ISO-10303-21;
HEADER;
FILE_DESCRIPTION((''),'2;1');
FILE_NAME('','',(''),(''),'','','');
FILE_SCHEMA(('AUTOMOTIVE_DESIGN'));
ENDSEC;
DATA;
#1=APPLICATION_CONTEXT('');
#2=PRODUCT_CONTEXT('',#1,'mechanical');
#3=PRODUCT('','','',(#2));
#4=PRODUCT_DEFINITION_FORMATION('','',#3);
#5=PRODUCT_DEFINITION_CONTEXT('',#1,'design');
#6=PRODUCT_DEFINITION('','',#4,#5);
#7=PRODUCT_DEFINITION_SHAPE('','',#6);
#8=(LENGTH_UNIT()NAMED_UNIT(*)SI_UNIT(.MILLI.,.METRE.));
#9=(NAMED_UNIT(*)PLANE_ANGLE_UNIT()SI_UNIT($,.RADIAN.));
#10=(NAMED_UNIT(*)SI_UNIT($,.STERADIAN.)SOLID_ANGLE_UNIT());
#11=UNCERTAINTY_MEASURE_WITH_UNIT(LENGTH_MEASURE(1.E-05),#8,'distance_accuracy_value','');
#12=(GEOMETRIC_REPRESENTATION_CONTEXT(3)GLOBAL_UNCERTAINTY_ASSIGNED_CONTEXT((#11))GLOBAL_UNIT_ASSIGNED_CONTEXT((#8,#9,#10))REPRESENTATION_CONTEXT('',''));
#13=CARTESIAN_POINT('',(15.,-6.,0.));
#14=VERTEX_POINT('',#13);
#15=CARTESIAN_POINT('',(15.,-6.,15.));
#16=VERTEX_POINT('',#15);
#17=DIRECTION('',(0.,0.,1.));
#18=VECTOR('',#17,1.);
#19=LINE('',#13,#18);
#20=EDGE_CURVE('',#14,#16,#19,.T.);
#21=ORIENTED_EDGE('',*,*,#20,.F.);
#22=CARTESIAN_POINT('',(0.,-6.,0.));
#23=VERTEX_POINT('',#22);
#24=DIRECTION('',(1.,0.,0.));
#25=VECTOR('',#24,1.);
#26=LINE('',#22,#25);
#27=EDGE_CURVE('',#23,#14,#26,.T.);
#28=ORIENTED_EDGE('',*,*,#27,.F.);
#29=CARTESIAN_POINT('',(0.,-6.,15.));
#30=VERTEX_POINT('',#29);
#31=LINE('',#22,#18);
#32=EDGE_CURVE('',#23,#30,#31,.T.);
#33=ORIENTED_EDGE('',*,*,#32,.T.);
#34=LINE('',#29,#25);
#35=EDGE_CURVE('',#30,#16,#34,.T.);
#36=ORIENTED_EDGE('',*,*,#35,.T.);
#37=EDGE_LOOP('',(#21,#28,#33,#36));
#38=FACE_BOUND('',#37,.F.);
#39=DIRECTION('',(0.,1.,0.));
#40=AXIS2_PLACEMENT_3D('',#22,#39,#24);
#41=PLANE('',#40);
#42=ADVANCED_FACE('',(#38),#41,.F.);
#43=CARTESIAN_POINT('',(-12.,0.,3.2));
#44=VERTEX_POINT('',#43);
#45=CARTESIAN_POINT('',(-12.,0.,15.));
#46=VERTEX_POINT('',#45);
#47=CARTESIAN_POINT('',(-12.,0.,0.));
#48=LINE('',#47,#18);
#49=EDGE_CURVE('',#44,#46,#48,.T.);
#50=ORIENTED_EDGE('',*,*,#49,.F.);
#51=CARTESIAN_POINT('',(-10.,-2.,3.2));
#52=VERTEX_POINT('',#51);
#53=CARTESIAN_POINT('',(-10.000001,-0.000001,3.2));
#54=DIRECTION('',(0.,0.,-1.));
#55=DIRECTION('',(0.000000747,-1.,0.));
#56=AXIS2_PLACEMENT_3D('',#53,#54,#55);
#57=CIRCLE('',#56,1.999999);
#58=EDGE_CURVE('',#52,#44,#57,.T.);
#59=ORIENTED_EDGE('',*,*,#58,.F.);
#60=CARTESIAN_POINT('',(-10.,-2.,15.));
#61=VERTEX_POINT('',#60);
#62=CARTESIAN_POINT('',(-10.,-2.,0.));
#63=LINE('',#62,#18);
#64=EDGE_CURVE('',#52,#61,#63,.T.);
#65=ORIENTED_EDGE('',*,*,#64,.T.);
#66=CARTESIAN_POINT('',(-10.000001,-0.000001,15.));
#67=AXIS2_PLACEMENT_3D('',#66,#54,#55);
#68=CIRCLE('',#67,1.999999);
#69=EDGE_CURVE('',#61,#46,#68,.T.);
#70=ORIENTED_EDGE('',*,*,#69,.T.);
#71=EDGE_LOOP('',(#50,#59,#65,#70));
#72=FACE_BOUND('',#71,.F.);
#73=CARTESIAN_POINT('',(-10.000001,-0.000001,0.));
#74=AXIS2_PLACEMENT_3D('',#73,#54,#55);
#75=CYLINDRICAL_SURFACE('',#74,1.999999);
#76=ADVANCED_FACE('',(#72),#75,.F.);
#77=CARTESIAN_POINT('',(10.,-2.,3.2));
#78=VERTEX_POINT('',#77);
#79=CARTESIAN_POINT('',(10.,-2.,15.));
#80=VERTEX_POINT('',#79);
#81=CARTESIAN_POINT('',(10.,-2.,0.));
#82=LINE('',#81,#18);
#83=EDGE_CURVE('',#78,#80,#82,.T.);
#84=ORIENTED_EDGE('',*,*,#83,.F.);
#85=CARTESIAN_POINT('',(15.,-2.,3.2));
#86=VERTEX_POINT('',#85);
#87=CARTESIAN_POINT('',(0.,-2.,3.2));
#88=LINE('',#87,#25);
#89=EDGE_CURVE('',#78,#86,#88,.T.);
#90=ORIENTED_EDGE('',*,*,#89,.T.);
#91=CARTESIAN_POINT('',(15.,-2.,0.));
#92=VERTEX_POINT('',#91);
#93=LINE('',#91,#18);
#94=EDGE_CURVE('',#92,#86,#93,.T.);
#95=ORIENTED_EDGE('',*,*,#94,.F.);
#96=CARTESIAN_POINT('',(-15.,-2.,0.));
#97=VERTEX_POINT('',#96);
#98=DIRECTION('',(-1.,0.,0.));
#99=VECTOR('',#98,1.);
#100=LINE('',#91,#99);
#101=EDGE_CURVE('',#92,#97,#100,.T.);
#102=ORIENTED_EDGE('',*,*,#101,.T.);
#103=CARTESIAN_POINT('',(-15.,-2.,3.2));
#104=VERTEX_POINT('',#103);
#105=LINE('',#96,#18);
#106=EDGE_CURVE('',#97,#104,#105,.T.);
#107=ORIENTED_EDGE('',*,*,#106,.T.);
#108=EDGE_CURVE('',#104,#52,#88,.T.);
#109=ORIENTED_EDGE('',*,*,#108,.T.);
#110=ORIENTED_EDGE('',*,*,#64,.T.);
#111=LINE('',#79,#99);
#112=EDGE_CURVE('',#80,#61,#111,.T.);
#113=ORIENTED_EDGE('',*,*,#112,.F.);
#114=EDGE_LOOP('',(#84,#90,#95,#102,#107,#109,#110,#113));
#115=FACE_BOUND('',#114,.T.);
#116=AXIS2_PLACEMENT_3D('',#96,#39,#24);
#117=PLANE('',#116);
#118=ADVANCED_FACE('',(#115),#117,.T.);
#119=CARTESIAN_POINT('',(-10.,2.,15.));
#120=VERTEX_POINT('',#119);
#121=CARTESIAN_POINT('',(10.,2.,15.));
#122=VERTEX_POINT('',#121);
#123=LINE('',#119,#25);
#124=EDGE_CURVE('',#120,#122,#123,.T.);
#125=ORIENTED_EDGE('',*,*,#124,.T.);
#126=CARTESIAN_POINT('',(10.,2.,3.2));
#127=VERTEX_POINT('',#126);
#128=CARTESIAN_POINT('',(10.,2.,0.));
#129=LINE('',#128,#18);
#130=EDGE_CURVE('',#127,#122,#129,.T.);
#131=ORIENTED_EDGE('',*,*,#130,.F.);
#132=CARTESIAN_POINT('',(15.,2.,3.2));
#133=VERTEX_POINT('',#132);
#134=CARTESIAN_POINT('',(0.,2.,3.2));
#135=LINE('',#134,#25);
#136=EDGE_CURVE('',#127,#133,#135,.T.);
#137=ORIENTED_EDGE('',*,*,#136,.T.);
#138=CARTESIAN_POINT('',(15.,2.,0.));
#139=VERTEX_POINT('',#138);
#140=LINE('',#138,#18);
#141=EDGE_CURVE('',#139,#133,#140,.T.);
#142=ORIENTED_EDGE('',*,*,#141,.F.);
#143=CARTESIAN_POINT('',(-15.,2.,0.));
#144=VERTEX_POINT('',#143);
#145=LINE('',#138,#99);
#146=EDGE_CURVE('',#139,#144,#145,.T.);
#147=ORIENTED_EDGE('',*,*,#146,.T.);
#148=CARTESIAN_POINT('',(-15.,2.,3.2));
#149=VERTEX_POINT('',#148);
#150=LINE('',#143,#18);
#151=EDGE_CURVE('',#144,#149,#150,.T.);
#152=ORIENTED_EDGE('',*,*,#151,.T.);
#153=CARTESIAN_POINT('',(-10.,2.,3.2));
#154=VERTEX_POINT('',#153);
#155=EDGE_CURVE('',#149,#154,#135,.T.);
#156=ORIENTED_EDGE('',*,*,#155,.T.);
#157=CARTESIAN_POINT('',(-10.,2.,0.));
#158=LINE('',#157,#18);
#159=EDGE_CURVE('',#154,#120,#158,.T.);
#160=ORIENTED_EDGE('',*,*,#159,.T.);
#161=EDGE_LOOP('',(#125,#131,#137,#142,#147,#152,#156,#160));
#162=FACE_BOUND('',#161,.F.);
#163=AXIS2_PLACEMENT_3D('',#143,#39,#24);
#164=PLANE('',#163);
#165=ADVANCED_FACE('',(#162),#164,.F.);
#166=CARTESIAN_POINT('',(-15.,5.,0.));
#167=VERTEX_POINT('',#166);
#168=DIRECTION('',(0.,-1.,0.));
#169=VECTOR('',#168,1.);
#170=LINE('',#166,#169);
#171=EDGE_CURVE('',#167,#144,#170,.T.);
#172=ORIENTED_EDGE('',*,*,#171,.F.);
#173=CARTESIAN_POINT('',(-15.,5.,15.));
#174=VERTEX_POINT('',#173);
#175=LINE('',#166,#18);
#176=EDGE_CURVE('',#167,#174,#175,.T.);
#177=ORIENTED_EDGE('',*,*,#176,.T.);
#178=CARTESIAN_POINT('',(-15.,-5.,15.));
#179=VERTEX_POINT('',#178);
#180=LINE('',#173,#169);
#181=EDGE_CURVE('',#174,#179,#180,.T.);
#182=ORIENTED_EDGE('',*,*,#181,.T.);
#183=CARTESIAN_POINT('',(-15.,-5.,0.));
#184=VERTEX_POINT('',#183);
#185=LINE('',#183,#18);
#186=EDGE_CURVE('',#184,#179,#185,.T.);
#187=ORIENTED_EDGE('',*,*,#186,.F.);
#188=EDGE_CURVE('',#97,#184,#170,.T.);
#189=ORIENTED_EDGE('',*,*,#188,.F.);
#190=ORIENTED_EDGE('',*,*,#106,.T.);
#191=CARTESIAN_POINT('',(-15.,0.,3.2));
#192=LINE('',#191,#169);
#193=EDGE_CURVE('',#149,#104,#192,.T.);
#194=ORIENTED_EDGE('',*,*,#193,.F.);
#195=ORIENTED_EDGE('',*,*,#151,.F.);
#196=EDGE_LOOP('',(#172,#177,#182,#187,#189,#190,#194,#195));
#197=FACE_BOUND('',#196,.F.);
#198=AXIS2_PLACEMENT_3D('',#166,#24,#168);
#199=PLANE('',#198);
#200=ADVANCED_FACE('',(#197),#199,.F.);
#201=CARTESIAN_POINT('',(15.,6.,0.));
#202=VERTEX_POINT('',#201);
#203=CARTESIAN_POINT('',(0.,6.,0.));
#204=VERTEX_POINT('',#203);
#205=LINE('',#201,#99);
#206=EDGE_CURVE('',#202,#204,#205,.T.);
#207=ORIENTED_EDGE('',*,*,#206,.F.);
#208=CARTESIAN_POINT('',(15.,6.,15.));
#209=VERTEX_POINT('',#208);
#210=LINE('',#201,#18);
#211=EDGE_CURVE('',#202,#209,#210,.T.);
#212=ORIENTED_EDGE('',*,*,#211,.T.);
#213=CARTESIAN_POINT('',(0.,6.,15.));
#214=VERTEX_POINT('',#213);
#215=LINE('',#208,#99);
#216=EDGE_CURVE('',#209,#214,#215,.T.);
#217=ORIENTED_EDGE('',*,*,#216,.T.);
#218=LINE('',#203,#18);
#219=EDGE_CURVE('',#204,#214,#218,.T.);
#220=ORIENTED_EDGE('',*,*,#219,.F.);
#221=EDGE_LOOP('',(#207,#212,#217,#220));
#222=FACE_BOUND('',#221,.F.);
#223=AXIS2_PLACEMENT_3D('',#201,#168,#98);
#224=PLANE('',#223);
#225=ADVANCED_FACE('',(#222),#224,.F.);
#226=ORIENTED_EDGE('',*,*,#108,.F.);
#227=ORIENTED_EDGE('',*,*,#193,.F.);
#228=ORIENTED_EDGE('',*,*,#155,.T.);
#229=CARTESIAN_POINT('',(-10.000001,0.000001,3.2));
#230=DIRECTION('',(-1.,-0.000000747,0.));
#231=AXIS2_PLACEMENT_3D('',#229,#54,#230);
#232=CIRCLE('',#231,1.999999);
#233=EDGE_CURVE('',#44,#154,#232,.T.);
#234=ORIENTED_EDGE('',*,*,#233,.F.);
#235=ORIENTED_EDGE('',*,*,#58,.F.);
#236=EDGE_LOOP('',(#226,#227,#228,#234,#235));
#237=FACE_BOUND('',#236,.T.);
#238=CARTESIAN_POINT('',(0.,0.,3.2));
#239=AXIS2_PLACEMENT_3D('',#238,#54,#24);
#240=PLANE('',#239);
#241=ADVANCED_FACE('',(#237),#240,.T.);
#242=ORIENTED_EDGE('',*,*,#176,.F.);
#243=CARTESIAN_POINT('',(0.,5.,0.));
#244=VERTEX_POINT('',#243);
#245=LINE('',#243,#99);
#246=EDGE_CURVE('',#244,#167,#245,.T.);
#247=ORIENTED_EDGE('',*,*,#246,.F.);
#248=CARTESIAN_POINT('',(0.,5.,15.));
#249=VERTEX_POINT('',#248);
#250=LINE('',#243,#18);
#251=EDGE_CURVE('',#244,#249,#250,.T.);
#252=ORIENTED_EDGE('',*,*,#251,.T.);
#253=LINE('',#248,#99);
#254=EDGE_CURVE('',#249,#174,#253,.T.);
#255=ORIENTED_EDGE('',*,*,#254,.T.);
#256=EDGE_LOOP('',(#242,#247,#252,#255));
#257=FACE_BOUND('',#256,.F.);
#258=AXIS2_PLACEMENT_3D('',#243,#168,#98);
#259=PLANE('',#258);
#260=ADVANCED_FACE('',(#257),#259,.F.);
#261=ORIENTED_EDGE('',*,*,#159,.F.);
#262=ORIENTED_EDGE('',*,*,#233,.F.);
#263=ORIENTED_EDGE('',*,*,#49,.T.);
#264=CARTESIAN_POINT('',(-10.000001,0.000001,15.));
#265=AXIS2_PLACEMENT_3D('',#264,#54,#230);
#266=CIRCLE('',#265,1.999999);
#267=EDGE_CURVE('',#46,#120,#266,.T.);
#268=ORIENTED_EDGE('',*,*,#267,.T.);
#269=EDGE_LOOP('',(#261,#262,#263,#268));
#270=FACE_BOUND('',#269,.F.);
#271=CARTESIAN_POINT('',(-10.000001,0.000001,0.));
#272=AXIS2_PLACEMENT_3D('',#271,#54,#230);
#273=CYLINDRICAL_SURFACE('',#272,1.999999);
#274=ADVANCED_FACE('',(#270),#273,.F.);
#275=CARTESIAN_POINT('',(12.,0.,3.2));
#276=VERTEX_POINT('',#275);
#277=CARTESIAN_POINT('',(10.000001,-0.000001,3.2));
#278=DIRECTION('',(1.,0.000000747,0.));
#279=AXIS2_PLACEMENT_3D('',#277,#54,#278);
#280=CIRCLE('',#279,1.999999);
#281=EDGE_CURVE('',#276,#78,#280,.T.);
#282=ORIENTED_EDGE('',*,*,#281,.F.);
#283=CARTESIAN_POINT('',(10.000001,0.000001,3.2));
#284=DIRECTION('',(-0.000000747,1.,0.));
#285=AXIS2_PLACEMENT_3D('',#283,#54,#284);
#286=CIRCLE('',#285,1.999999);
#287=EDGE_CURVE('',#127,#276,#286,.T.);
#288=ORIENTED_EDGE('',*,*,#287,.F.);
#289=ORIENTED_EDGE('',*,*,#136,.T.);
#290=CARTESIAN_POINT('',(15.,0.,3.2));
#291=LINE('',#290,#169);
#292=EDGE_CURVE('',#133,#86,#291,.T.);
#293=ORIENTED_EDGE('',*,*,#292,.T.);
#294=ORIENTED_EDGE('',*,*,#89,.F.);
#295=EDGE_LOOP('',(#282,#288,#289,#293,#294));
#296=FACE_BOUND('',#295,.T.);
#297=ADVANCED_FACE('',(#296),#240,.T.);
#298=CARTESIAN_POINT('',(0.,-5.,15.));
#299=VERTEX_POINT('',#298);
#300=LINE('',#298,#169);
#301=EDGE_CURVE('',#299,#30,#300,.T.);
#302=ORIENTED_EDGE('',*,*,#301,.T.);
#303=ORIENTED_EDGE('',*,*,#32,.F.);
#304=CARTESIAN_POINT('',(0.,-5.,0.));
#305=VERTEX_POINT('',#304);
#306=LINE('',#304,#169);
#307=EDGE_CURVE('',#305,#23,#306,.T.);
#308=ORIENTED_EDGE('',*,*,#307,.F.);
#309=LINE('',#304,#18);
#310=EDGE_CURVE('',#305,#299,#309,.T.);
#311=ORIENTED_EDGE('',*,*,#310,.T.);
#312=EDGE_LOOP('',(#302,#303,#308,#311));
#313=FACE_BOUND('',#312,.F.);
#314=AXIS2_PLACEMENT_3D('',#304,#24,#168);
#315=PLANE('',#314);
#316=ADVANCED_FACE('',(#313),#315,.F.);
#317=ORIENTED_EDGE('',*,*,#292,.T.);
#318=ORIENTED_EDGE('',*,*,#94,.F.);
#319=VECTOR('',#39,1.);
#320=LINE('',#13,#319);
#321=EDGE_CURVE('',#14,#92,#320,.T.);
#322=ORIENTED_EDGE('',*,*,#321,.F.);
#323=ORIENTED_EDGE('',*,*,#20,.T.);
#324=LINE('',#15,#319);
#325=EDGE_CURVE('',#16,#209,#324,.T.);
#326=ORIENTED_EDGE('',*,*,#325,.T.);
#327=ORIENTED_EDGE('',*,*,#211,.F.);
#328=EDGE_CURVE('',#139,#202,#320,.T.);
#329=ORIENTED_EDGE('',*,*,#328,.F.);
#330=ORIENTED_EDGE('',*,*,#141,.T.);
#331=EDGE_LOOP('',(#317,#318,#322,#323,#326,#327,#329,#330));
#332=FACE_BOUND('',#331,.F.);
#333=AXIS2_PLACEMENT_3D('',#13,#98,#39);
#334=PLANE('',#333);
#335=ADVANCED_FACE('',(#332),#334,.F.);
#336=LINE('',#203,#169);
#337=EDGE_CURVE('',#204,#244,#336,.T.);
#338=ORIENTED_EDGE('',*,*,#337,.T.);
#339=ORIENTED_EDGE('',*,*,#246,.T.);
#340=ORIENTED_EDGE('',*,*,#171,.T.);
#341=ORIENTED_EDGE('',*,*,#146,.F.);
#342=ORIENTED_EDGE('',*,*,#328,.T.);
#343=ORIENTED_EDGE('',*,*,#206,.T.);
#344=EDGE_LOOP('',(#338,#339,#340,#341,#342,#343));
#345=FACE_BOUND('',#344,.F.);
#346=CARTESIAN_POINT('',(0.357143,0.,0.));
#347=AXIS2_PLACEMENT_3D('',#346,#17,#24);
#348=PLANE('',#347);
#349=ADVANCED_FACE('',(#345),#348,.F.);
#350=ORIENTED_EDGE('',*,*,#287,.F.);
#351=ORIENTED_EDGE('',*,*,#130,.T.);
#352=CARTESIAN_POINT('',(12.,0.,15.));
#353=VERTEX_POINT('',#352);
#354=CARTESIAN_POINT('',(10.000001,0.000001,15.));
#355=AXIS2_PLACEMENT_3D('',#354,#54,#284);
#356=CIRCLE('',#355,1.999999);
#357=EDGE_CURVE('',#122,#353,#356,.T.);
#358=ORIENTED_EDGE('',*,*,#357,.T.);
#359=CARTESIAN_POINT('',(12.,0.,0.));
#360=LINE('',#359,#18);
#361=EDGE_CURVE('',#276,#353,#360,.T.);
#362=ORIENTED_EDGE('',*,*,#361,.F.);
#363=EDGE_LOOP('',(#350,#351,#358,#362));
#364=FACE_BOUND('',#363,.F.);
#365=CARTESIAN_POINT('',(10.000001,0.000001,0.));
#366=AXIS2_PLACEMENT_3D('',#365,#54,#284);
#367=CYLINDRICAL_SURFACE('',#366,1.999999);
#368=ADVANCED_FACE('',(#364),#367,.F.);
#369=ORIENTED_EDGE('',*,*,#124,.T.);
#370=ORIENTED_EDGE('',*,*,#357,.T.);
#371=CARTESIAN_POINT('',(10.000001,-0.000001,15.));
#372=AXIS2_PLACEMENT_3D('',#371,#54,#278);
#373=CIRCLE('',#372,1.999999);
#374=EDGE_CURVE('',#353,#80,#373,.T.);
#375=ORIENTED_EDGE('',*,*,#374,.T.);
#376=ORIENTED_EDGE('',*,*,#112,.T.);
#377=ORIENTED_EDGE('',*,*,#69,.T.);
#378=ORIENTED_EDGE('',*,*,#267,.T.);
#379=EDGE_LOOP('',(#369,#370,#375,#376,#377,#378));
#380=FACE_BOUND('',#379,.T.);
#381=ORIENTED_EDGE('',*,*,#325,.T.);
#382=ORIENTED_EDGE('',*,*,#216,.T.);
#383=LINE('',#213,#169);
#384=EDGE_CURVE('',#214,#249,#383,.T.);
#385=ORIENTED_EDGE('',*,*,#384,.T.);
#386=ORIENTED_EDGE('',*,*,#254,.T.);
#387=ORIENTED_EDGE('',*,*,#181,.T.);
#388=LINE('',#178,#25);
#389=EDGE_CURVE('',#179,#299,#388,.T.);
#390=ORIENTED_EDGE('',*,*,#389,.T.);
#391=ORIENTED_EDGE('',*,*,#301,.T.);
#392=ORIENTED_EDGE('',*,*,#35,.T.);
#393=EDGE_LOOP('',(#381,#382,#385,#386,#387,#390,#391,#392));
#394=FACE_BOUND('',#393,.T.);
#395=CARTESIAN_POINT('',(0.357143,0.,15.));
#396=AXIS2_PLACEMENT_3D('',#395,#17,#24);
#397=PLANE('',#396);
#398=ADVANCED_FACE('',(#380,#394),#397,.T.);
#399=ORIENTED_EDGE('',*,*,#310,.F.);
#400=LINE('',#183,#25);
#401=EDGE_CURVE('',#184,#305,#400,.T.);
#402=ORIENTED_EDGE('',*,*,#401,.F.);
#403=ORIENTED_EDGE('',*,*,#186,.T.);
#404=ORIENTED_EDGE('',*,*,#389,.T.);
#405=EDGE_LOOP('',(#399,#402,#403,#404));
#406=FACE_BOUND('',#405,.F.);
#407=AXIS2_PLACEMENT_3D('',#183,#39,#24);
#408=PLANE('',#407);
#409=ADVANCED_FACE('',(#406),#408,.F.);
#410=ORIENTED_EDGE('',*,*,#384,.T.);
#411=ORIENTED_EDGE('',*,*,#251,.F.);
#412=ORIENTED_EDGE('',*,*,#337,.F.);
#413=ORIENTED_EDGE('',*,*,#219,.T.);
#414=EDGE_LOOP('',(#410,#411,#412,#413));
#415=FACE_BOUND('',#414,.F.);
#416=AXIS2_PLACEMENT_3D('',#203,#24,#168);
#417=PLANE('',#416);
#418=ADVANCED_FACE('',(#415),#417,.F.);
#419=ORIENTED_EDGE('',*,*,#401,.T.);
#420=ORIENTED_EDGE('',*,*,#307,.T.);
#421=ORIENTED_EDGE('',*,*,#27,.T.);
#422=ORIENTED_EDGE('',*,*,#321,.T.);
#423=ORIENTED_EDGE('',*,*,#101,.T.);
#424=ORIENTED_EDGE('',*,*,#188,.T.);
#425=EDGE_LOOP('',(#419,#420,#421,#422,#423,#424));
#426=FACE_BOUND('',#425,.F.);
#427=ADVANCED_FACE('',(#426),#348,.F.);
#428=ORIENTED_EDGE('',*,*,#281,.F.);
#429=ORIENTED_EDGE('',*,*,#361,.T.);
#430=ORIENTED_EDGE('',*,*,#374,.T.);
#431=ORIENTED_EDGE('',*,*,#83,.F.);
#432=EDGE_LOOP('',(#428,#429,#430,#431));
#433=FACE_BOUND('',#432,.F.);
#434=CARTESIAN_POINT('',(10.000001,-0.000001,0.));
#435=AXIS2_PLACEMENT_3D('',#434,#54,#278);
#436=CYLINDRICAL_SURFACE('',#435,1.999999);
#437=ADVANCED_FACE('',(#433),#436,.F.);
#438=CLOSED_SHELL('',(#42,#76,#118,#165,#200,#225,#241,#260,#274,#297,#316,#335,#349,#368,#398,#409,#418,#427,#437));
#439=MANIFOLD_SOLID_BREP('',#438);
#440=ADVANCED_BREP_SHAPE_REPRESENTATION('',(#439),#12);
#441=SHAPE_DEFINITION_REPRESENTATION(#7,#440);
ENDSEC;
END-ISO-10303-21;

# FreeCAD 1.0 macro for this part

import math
import FreeCAD as App
import Part
import Sketcher
from FreeCAD import Vector


def add_polygon(sketch, points):
    """Adds a closed chain of lines whose ends are joined by coincident constraints."""
    first, n = sketch.GeometryCount, len(points)
    for a, b in zip(points, points[1:] + points[:1]):
        sketch.addGeometry(Part.LineSegment(App.Vector(*a, 0), App.Vector(*b, 0)), False)
    for i in range(n):
        sketch.addConstraint(Sketcher.Constraint("Coincident", first + i, 2, first + (i + 1) % n, 1))

doc = App.newDocument("Part")
body = doc.addObject("PartDesign::Body", "Body")

# Sketch on XY plane
sketch1 = body.newObject("Sketcher::SketchObject", "Sketch")
sketch1.AttachmentSupport = (doc.getObject("XY_Plane"), [""])
sketch1.MapMode = "FlatFace"
add_polygon(sketch1, [(0, 5), (-15, 5), (-15, -5), (0, -5), (0, -6), (15, -6), (15, 6), (0, 6)])  # lines 0-7
sketch1.addGeometry(Part.ArcOfCircle(Part.Circle(Vector(-10, 0, 0), Vector(0, 0, 1), 2), math.radians(180), math.radians(270)), False)  # 8
sketch1.addGeometry(Part.ArcOfCircle(Part.Circle(Vector(-10, 0, 0), Vector(0, 0, 1), 2), math.radians(90), math.radians(180)), False)  # 9
sketch1.addGeometry(Part.LineSegment(Vector(-10, 2, 0), Vector(10, 2, 0)), False)  # 10
sketch1.addGeometry(Part.ArcOfCircle(Part.Circle(Vector(10, 0, 0), Vector(0, 0, 1), 2), math.radians(0), math.radians(90)), False)  # 11
sketch1.addGeometry(Part.ArcOfCircle(Part.Circle(Vector(10, 0, 0), Vector(0, 0, 1), 2), math.radians(-90), math.radians(0)), False)  # 12
sketch1.addGeometry(Part.LineSegment(Vector(10, -2, 0), Vector(-10, -2, 0)), False)  # 13
sketch1.addConstraint([
    Sketcher.Constraint("Tangent", 8, 1, 9, 2),
    Sketcher.Constraint("Tangent", 9, 1, 10, 1),
    Sketcher.Constraint("Tangent", 10, 2, 11, 2),
    Sketcher.Constraint("Tangent", 11, 1, 12, 2),
    Sketcher.Constraint("Tangent", 12, 1, 13, 1),
    Sketcher.Constraint("Tangent", 13, 2, 8, 2),
    Sketcher.Constraint("Horizontal", 0),
    Sketcher.Constraint("Vertical", 1),
    Sketcher.Constraint("Horizontal", 2),
    Sketcher.Constraint("Vertical", 3),
    Sketcher.Constraint("Horizontal", 4),
    Sketcher.Constraint("Vertical", 5),
    Sketcher.Constraint("Horizontal", 6),
    Sketcher.Constraint("Vertical", 7),
    Sketcher.Constraint("Horizontal", 10),
    Sketcher.Constraint("Horizontal", 13),
    Sketcher.Constraint("Equal", 8, 9),
    Sketcher.Constraint("Equal", 9, 11),
    Sketcher.Constraint("Symmetric", 8, 3, 11, 3, -1, 1),
    Sketcher.Constraint("Symmetric", 3, 2, 6, 2, -1, 1),
    Sketcher.Constraint("Symmetric", 2, 2, 7, 2, -1),
    Sketcher.Constraint("PointOnObject", 8, 1, -1),
    Sketcher.Constraint("PointOnObject", 11, 1, -1),
    Sketcher.Constraint("Equal", 2, 4),
    Sketcher.Constraint("Radius", 8, 1.999999),
    Sketcher.Constraint("DistanceX", 0, 2, 0, 1, 15.0),
    Sketcher.Constraint("DistanceX", 10, 1, 10, 2, 20.0),
    Sketcher.Constraint("DistanceY", 1, 2, 1, 1, 10.0),
    Sketcher.Constraint("DistanceY", 3, 2, 3, 1, 1.0),
])
pad1 = body.newObject("PartDesign::Pad", "Pad")
pad1.Profile = sketch1
pad1.Length = 15

# Sketch on XY plane
sketch2 = body.newObject("Sketcher::SketchObject", "Sketch001")
sketch2.AttachmentSupport = (doc.getObject("XY_Plane"), [""])
sketch2.MapMode = "FlatFace"
add_polygon(sketch2, [(-15, -2), (-15, 2), (15, 2), (15, -2)])  # lines 0-3
sketch2.addConstraint([
    Sketcher.Constraint("Vertical", 0),
    Sketcher.Constraint("Horizontal", 1),
    Sketcher.Constraint("Vertical", 2),
    Sketcher.Constraint("Horizontal", 3),
    Sketcher.Constraint("Symmetric", 0, 2, 2, 2, -1, 1),
    Sketcher.Constraint("DistanceX", 1, 1, 1, 2, 30.0),
    Sketcher.Constraint("DistanceY", 0, 1, 0, 2, 4.0),
])
pocket1 = body.newObject("PartDesign::Pocket", "Pocket")
pocket1.Profile = sketch2
pocket1.Length = 3.2
pocket1.Reversed = True

doc.recompute()
